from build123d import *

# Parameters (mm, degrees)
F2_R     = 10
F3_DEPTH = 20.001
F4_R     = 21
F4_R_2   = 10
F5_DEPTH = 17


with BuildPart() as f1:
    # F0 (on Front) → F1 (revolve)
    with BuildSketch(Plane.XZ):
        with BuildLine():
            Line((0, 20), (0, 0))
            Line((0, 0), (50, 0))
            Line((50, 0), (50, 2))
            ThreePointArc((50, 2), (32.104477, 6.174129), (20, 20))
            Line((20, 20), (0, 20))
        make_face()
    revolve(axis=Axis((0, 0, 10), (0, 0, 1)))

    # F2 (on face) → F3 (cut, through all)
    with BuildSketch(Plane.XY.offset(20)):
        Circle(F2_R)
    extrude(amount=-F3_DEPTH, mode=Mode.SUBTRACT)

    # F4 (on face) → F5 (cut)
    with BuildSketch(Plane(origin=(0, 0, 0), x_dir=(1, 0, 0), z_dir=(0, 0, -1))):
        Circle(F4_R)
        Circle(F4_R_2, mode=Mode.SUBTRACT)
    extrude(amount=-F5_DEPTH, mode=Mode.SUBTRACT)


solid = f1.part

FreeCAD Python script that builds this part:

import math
import FreeCAD as App
import Part
import Sketcher
Q = App.Units.Quantity

doc = App.newDocument("Part")
body = doc.addObject("PartDesign::Body", "Body")

sketch1 = body.newObject("Sketcher::SketchObject", "Sketch")
sketch1.AttachmentSupport = (doc.getObject("XZ_Plane"), [""])
sketch1.MapMode = "FlatFace"
sketch1.addGeometry([
    Part.LineSegment(App.Vector(0, 20, 0), App.Vector(0, 0, 0)),
    Part.LineSegment(App.Vector(0, 0, 0), App.Vector(50, 0, 0)),
    Part.LineSegment(App.Vector(50, 0, 0), App.Vector(50, 2, 0)),
    Part.ArcOfCircle(Part.Circle(App.Vector(47.5, 31.9, 0), App.Vector(0, 0, 1), 30), math.radians(-157), math.radians(-85)),
    Part.LineSegment(App.Vector(20, 20, 0), App.Vector(0, 20, 0)),
], False)
sketch1.addConstraint([
    Sketcher.Constraint("Coincident", 0, 2, 1, 1),
    Sketcher.Constraint("Coincident", 1, 2, 2, 1),
    Sketcher.Constraint("Coincident", 2, 2, 3, 2),
    Sketcher.Constraint("Coincident", 3, 1, 4, 1),
    Sketcher.Constraint("Coincident", 4, 2, 0, 1),
    Sketcher.Constraint("Vertical", 0),
    Sketcher.Constraint("Horizontal", 1),
    Sketcher.Constraint("Vertical", 2),
    Sketcher.Constraint("Horizontal", 4),
    Sketcher.Constraint("Coincident", 0, 2, -1, 1),
    Sketcher.Constraint("Equal", 4, 0),
    Sketcher.Constraint("Radius", 3, Q("30.000001 mm")),
    Sketcher.Constraint("DistanceX", 1, 1, 1, 2, Q("50 mm")),
    Sketcher.Constraint("DistanceX", 4, 2, 4, 1, Q("20 mm")),
    Sketcher.Constraint("DistanceY", 2, 1, 2, 2, Q("2 mm")),
])
revolution = body.newObject("PartDesign::Revolution", "Revolution")
revolution.Profile = sketch1
revolution.ReferenceAxis = (sketch1, ["V_Axis"])
revolution.Angle = 360

sketch2 = body.newObject("Sketcher::SketchObject", "Sketch001")
sketch2.AttachmentSupport = (doc.getObject("XY_Plane"), [""])
sketch2.MapMode = "FlatFace"
sketch2.AttachmentOffset = App.Placement(App.Vector(0, 0, 20), App.Rotation())
sketch2.addGeometry(Part.Circle(App.Vector(0, 0, 0), App.Vector(0, 0, 1), 10), False)
sketch2.addConstraint([
    Sketcher.Constraint("Coincident", 0, 3, -1, 1),
    Sketcher.Constraint("Diameter", 0, Q("20 mm")),
])
pocket1 = body.newObject("PartDesign::Pocket", "Pocket")
pocket1.Profile = sketch2
pocket1.Type = "ThroughAll"

sketch3 = body.newObject("Sketcher::SketchObject", "Sketch002")
sketch3.AttachmentSupport = (doc.getObject("XY_Plane"), [""])
sketch3.MapMode = "FlatFace"
sketch3.addGeometry([
    Part.Circle(App.Vector(0, 0, 0), App.Vector(0, 0, 1), 21),
    Part.Circle(App.Vector(0, 0, 0), App.Vector(0, 0, 1), 10),
], False)
sketch3.addConstraint([
    Sketcher.Constraint("Coincident", 0, 3, -1, 1),
    Sketcher.Constraint("Coincident", 1, 3, -1, 1),
    Sketcher.Constraint("Diameter", 0, Q("42 mm")),
    Sketcher.Constraint("Diameter", 1, Q("20 mm")),
])
pocket2 = body.newObject("PartDesign::Pocket", "Pocket001")
pocket2.Profile = sketch3
pocket2.Length = 17
pocket2.Reversed = True

doc.recompute()
